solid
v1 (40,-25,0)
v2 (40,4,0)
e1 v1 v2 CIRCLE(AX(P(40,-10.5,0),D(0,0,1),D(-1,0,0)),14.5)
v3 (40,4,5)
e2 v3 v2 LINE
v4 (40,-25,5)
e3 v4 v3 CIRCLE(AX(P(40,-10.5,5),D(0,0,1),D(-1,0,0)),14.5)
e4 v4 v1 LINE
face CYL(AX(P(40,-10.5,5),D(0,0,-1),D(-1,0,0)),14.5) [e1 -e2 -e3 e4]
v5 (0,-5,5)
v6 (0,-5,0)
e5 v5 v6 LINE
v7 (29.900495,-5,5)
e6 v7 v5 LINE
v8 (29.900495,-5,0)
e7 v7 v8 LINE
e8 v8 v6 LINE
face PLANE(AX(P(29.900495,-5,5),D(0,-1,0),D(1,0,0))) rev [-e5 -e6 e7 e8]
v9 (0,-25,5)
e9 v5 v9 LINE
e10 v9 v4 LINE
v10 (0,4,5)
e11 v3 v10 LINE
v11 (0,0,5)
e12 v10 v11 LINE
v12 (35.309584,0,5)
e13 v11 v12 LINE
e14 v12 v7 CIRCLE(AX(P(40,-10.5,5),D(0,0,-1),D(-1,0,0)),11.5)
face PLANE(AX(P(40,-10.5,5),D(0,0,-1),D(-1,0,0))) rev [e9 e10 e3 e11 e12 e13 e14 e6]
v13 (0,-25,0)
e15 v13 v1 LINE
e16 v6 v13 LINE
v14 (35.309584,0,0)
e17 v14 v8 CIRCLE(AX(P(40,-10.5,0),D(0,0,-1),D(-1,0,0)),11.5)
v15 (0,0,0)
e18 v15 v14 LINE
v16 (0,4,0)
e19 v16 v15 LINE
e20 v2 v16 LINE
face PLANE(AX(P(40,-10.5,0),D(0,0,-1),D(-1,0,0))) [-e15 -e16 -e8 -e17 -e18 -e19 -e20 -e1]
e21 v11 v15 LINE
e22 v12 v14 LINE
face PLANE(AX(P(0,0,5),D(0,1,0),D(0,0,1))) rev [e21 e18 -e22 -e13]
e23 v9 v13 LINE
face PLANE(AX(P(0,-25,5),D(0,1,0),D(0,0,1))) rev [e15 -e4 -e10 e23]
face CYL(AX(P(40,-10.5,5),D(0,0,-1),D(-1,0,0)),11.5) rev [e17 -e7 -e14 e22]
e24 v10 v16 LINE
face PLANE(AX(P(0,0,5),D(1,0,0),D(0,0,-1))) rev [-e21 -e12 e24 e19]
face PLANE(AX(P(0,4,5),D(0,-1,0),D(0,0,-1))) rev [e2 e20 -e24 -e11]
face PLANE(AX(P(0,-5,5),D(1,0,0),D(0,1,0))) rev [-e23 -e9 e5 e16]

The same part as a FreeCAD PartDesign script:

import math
import FreeCAD as App
import Part
import Sketcher

V = App.Vector

doc = App.newDocument("Part")
body = doc.addObject("PartDesign::Body", "Body")

# Sketch on XY plane
sketch1 = body.newObject("Sketcher::SketchObject", "Sketch")
sketch1.AttachmentSupport = (doc.getObject("XY_Plane"), [""])
sketch1.MapMode = "FlatFace"
sketch1.addGeometry([
    Part.LineSegment(V(0, 4, 0), V(0, 0, 0)),  # 0
    Part.LineSegment(V(0, 0, 0), V(35.3, 0, 0)),  # 1
    Part.ArcOfCircle(Part.Circle(V(40, -10.5, 0), V(0, 0, 1), 11.5), math.radians(151), math.radians(474)),  # 2
    Part.LineSegment(V(29.9, -5, 0), V(0, -5, 0)),  # 3
    Part.LineSegment(V(0, -5, 0), V(0, -25, 0)),  # 4
    Part.LineSegment(V(0, -25, 0), V(40, -25, 0)),  # 5
    Part.ArcOfCircle(Part.Circle(V(40, -10.5, 0), V(0, 0, 1), 14.5), math.radians(-90), math.radians(90)),  # 6
    Part.LineSegment(V(40, 4, 0), V(0, 4, 0)),  # 7
], False)
sketch1.addConstraint([
    Sketcher.Constraint("Coincident", 0, 2, 1, 1),
    Sketcher.Constraint("Coincident", 1, 2, 2, 2),
    Sketcher.Constraint("Coincident", 2, 1, 3, 1),
    Sketcher.Constraint("Coincident", 3, 2, 4, 1),
    Sketcher.Constraint("Coincident", 4, 2, 5, 1),
    Sketcher.Constraint("Tangent", 5, 2, 6, 1),
    Sketcher.Constraint("Tangent", 6, 2, 7, 1),
    Sketcher.Constraint("Coincident", 7, 2, 0, 1),
    Sketcher.Constraint("Vertical", 0),
    Sketcher.Constraint("Horizontal", 1),
    Sketcher.Constraint("Horizontal", 3),
    Sketcher.Constraint("Vertical", 4),
    Sketcher.Constraint("Horizontal", 5),
    Sketcher.Constraint("Horizontal", 7),
    Sketcher.Constraint("Coincident", 0, 2, -1, 1),
    Sketcher.Constraint("Coincident", 6, 3, 2, 3),
    Sketcher.Constraint("PointOnObject", 3, 2, -2),
    Sketcher.Constraint("Radius", 2, 11.5),
    Sketcher.Constraint("Radius", 6, 14.5),
    Sketcher.Constraint("DistanceX", 5, 1, 5, 2, 40.0),
    Sketcher.Constraint("DistanceY", 0, 2, 0, 1, 4.0),
    Sketcher.Constraint("DistanceY", 4, 2, 4, 1, 20.0),
])
pad1 = body.newObject("PartDesign::Pad", "Pad")
pad1.Profile = sketch1
pad1.Length = 5

doc.recompute()
